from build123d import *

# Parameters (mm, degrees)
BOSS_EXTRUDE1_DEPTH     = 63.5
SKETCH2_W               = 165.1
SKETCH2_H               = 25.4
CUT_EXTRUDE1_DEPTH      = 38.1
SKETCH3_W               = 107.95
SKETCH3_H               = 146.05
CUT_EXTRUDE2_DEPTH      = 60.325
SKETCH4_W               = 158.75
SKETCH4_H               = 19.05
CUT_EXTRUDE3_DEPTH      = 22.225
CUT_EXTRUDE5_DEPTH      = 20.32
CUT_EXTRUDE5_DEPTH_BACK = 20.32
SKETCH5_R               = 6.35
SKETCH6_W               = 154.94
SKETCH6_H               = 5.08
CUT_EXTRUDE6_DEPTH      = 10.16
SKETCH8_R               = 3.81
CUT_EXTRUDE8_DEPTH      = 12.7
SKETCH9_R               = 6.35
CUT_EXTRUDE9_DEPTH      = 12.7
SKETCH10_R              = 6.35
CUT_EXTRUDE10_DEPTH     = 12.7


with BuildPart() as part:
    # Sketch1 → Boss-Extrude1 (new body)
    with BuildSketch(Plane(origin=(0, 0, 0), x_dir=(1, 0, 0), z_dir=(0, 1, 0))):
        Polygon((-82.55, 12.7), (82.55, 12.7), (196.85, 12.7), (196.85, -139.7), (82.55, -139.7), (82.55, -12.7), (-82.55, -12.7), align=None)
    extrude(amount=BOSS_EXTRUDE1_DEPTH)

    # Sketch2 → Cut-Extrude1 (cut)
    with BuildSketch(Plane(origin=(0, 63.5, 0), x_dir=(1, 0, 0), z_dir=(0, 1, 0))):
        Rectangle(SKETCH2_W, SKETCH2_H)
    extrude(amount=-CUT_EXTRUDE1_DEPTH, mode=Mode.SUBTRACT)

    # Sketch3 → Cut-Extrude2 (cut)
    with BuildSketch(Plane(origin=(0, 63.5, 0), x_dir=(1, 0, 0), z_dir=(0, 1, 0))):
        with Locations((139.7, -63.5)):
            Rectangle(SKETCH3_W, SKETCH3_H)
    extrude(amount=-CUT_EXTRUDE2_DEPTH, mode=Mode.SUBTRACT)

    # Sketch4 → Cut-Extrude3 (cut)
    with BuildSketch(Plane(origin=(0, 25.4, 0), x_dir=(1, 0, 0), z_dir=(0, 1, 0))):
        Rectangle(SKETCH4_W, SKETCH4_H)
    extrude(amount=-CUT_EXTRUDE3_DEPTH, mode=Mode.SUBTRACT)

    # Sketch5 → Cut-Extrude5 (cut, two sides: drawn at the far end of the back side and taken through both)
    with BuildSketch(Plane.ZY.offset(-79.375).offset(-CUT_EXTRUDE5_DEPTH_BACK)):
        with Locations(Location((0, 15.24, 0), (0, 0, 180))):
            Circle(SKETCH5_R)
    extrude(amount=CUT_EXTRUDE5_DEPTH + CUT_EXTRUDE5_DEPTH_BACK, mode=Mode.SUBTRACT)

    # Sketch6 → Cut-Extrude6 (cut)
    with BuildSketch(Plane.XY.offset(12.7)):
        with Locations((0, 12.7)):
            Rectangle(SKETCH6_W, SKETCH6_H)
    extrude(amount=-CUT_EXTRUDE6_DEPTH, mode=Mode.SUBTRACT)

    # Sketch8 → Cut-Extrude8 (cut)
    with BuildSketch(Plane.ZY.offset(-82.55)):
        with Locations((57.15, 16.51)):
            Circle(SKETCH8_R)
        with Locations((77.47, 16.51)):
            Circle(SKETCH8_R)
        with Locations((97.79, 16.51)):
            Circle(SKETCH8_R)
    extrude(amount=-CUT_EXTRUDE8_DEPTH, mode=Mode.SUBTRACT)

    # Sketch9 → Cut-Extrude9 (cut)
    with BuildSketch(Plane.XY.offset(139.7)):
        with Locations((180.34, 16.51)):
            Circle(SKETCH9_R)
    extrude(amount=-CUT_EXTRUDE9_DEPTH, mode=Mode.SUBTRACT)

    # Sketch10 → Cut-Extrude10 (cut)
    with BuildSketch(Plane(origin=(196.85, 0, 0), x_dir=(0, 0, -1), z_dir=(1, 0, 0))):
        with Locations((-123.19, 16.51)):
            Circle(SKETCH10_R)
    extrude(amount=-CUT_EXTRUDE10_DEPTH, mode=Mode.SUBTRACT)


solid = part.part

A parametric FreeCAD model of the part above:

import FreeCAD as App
import Part
import Sketcher

V = App.Vector
Q = App.Units.Quantity


def add_polygon(sketch, points):
    """Adds a closed chain of lines whose ends are joined by coincident constraints."""
    first, n = sketch.GeometryCount, len(points)
    for a, b in zip(points, points[1:] + points[:1]):
        sketch.addGeometry(Part.LineSegment(App.Vector(*a, 0), App.Vector(*b, 0)), False)
    for i in range(n):
        sketch.addConstraint(Sketcher.Constraint("Coincident", first + i, 2, first + (i + 1) % n, 1))

doc = App.newDocument("Part")
params = doc.addObject("Spreadsheet::Sheet", "Params")
for row, (alias, value) in enumerate([
    ("sketch1_width", "11 in"),
    ("sketch1_height", "1 in"),
    ("sketch1_height2", "5 in"),
    ("sketch1_width2", "6.5 in"),
    ("pad1_length", "2.5 in"),
    ("sketch2_height", "1 in"),
    ("sketch2_width", "6.5 in"),
    ("pocket1_length", "1.5 in"),
    ("sketch3_width", "4.25 in"),
    ("sketch3_height", "5.75 in"),
    ("pocket2_length", "2.375 in"),
    ("sketch4_width", "6.25 in"),
    ("sketch4_height", "0.75 in"),
    ("pocket3_length", "0.875 in"),
    ("sketch5_diameter", "0.5 in"),
    ("pocket4_length", "0.8 in"),
    ("pocket4_length2", "0.8 in"),
    ("sketch6_width", "6.1 in"),
    ("sketch6_height", "0.2 in"),
    ("pocket5_length", "0.4 in"),
    ("sketch7_diameter", "0.3 in"),
    ("pocket6_length", "0.5 in"),
    ("sketch8_diameter", "0.5 in"),
    ("pocket7_length", "0.5 in"),
    ("sketch9_diameter", "0.5 in"),
    ("pocket8_length", "0.5 in"),
], start=1):
    params.set(f"A{row}", alias)
    params.set(f"B{row}", "=" + value)
    params.setAlias(f"B{row}", alias)

body = doc.addObject("PartDesign::Body", "Body")

sketch1 = body.newObject("Sketcher::SketchObject", "Sketch")
sketch1.AttachmentSupport = (doc.getObject("XZ_Plane"), [""])
sketch1.MapMode = "FlatFace"
add_polygon(sketch1, [(197, -13), (-83, -13), (-83, 13), (83, 13), (83, 140), (197, 140)])
sketch1.addConstraint(Sketcher.Constraint("Horizontal", 0))
sketch1.addConstraint(Sketcher.Constraint("Vertical", 1))
sketch1.addConstraint(Sketcher.Constraint("Horizontal", 2))
sketch1.addConstraint(Sketcher.Constraint("Vertical", 3))
sketch1.addConstraint(Sketcher.Constraint("Horizontal", 4))
sketch1.addConstraint(Sketcher.Constraint("Vertical", 5))
sketch1.addConstraint(Sketcher.Constraint("Symmetric", 0, 2, 2, 2, -1, 1))
sketch1.addConstraint(Sketcher.Constraint("DistanceX", 0, 2, 0, 1, Q("11 in")))
sketch1.addConstraint(Sketcher.Constraint("DistanceY", 1, 1, 1, 2, Q("1 in")))
sketch1.addConstraint(Sketcher.Constraint("DistanceY", 3, 1, 3, 2, Q("5 in")))
sketch1.addConstraint(Sketcher.Constraint("DistanceX", 2, 1, 2, 2, Q("6.5 in")))
sketch1.setExpression("Constraints[13]", "Params.sketch1_width")
sketch1.setExpression("Constraints[14]", "Params.sketch1_height")
sketch1.setExpression("Constraints[15]", "Params.sketch1_height2")
sketch1.setExpression("Constraints[16]", "Params.sketch1_width2")
pad1 = body.newObject("PartDesign::Pad", "Pad")
pad1.Profile = sketch1
pad1.setExpression("Length", "Params.pad1_length")
pad1.Reversed = True

sketch2 = body.newObject("Sketcher::SketchObject", "Sketch001")
sketch2.AttachmentSupport = (doc.getObject("XZ_Plane"), [""])
sketch2.MapMode = "FlatFace"
sketch2.AttachmentOffset = App.Placement(V(0, 0, -2.5 * 25.4), App.Rotation())
add_polygon(sketch2, [(-83, -13), (-83, 13), (83, 13), (83, -13)])
sketch2.addConstraint(Sketcher.Constraint("Vertical", 0))
sketch2.addConstraint(Sketcher.Constraint("Horizontal", 1))
sketch2.addConstraint(Sketcher.Constraint("Vertical", 2))
sketch2.addConstraint(Sketcher.Constraint("Horizontal", 3))
sketch2.addConstraint(Sketcher.Constraint("Symmetric", 0, 2, 2, 2, -1, 1))
sketch2.addConstraint(Sketcher.Constraint("DistanceY", 0, 1, 0, 2, Q("1 in")))
sketch2.addConstraint(Sketcher.Constraint("DistanceX", 1, 1, 1, 2, Q("6.5 in")))
sketch2.setExpression("Constraints[9]", "Params.sketch2_height")
sketch2.setExpression("Constraints[10]", "Params.sketch2_width")
pocket1 = body.newObject("PartDesign::Pocket", "Pocket")
pocket1.Profile = sketch2
pocket1.setExpression("Length", "Params.pocket1_length")
pocket1.Reversed = True

sketch3 = body.newObject("Sketcher::SketchObject", "Sketch002")
sketch3.AttachmentSupport = (doc.getObject("XZ_Plane"), [""])
sketch3.MapMode = "FlatFace"
sketch3.AttachmentOffset = App.Placement(V(0, 0, -2.5 * 25.4), App.Rotation())
add_polygon(sketch3, [(86, -10), (86, 137), (194, 137), (194, -10)])
sketch3.addConstraint(Sketcher.Constraint("Vertical", 0))
sketch3.addConstraint(Sketcher.Constraint("Horizontal", 1))
sketch3.addConstraint(Sketcher.Constraint("Vertical", 2))
sketch3.addConstraint(Sketcher.Constraint("Horizontal", 3))
sketch3.addConstraint(Sketcher.Constraint("DistanceX", 1, 1, 1, 2, Q("4.25 in")))
sketch3.addConstraint(Sketcher.Constraint("DistanceY", 0, 1, 0, 2, Q("5.75 in")))
sketch3.addConstraint(Sketcher.Constraint("DistanceX", -1, 1, 0, 2, Q("3.375 in")))
sketch3.addConstraint(Sketcher.Constraint("DistanceY", -1, 1, 0, 2, Q("5.375 in")))
sketch3.setExpression("Constraints[8]", "Params.sketch3_width")
sketch3.setExpression("Constraints[9]", "Params.sketch3_height")
pocket2 = body.newObject("PartDesign::Pocket", "Pocket001")
pocket2.Profile = sketch3
pocket2.setExpression("Length", "Params.pocket2_length")
pocket2.Reversed = True

sketch4 = body.newObject("Sketcher::SketchObject", "Sketch003")
sketch4.AttachmentSupport = (doc.getObject("XZ_Plane"), [""])
sketch4.MapMode = "FlatFace"
sketch4.AttachmentOffset = App.Placement(V(0, 0, -1 * 25.4), App.Rotation())
add_polygon(sketch4, [(-79, -10), (-79, 10), (79, 10), (79, -10)])
sketch4.addConstraint(Sketcher.Constraint("Vertical", 0))
sketch4.addConstraint(Sketcher.Constraint("Horizontal", 1))
sketch4.addConstraint(Sketcher.Constraint("Vertical", 2))
sketch4.addConstraint(Sketcher.Constraint("Horizontal", 3))
sketch4.addConstraint(Sketcher.Constraint("Symmetric", 0, 2, 2, 2, -1, 1))
sketch4.addConstraint(Sketcher.Constraint("DistanceX", 1, 1, 1, 2, Q("6.25 in")))
sketch4.addConstraint(Sketcher.Constraint("DistanceY", 0, 1, 0, 2, Q("0.75 in")))
sketch4.setExpression("Constraints[9]", "Params.sketch4_width")
sketch4.setExpression("Constraints[10]", "Params.sketch4_height")
pocket3 = body.newObject("PartDesign::Pocket", "Pocket002")
pocket3.Profile = sketch4
pocket3.setExpression("Length", "Params.pocket3_length")
pocket3.Reversed = True

sketch5 = body.newObject("Sketcher::SketchObject", "Sketch004")
sketch5.AttachmentSupport = (doc.getObject("YZ_Plane"), [""])
sketch5.MapMode = "FlatFace"
sketch5.AttachmentOffset = App.Placement(V(0, 0, 3.125 * 25.4), App.Rotation())
sketch5.addGeometry(Part.Circle(V(15, 0, 0), V(0, 0, 1), 6), False)
sketch5.addConstraint(Sketcher.Constraint("PointOnObject", 0, 3, -1))
sketch5.addConstraint(Sketcher.Constraint("Diameter", 0, Q("0.5 in")))
sketch5.addConstraint(Sketcher.Constraint("DistanceX", -1, 1, 0, 3, Q("0.6 in")))
sketch5.setExpression("Constraints[1]", "Params.sketch5_diameter")
pocket4 = body.newObject("PartDesign::Pocket", "Pocket003")
pocket4.Profile = sketch5
pocket4.Type = "TwoLengths"
pocket4.setExpression("Length", "Params.pocket4_length")
pocket4.setExpression("Length2", "Params.pocket4_length2")

sketch6 = body.newObject("Sketcher::SketchObject", "Sketch005")
sketch6.AttachmentSupport = (doc.getObject("XY_Plane"), [""])
sketch6.MapMode = "FlatFace"
sketch6.AttachmentOffset = App.Placement(V(0, 0, 0.5 * 25.4), App.Rotation())
add_polygon(sketch6, [(-77, 15), (-77, 10), (77, 10), (77, 15)])
sketch6.addConstraint(Sketcher.Constraint("Vertical", 0))
sketch6.addConstraint(Sketcher.Constraint("Horizontal", 1))
sketch6.addConstraint(Sketcher.Constraint("Vertical", 2))
sketch6.addConstraint(Sketcher.Constraint("Horizontal", 3))
sketch6.addConstraint(Sketcher.Constraint("DistanceX", 1, 1, 1, 2, Q("6.1 in")))
sketch6.addConstraint(Sketcher.Constraint("DistanceY", 0, 2, 0, 1, Q("0.2 in")))
sketch6.addConstraint(Sketcher.Constraint("DistanceY", -1, 1, 0, 2, Q("0.4 in")))
sketch6.addConstraint(Sketcher.Constraint("DistanceX", 0, 2, -1, 1, Q("3.05 in")))
sketch6.setExpression("Constraints[8]", "Params.sketch6_width")
sketch6.setExpression("Constraints[9]", "Params.sketch6_height")
pocket5 = body.newObject("PartDesign::Pocket", "Pocket004")
pocket5.Profile = sketch6
pocket5.setExpression("Length", "Params.pocket5_length")

sketch7 = body.newObject("Sketcher::SketchObject", "Sketch006")
sketch7.AttachmentSupport = (doc.getObject("YZ_Plane"), [""])
sketch7.MapMode = "FlatFace"
sketch7.AttachmentOffset = App.Placement(V(0, 0, 3.25 * 25.4), App.Rotation())
sketch7.addGeometry(Part.Circle(V(16.5, 57.1, 0), V(0, 0, 1), 3.8), False)
sketch7.addGeometry(Part.Circle(V(16.5, 77.5, 0), V(0, 0, 1), 3.8), False)
sketch7.addGeometry(Part.Circle(V(16.5, 97.8, 0), V(0, 0, 1), 3.8), False)
sketch7.addConstraint(Sketcher.Constraint("Equal", 0, 1))
sketch7.addConstraint(Sketcher.Constraint("Equal", 1, 2))
sketch7.addConstraint(Sketcher.Constraint("Vertical", 0, 3, 1, 3))
sketch7.addConstraint(Sketcher.Constraint("Vertical", 1, 3, 2, 3))
sketch7.addConstraint(Sketcher.Constraint("Diameter", 0, Q("0.3 in")))
sketch7.addConstraint(Sketcher.Constraint("DistanceY", 0, 3, 1, 3, Q("0.8 in")))
sketch7.addConstraint(Sketcher.Constraint("DistanceY", 1, 3, 2, 3, Q("0.8 in")))
sketch7.addConstraint(Sketcher.Constraint("DistanceX", -1, 1, 0, 3, Q("0.65 in")))
sketch7.addConstraint(Sketcher.Constraint("DistanceY", -1, 1, 0, 3, Q("2.25 in")))
sketch7.setExpression("Constraints[4]", "Params.sketch7_diameter")
pocket6 = body.newObject("PartDesign::Pocket", "Pocket005")
pocket6.Profile = sketch7
pocket6.setExpression("Length", "Params.pocket6_length")
pocket6.Reversed = True

sketch8 = body.newObject("Sketcher::SketchObject", "Sketch007")
sketch8.AttachmentSupport = (doc.getObject("XY_Plane"), [""])
sketch8.MapMode = "FlatFace"
sketch8.AttachmentOffset = App.Placement(V(0, 0, 5.5 * 25.4), App.Rotation())
sketch8.addGeometry(Part.Circle(V(180, 17, 0), V(0, 0, 1), 6), False)
sketch8.addConstraint(Sketcher.Constraint("Diameter", 0, Q("0.5 in")))
sketch8.addConstraint(Sketcher.Constraint("DistanceX", -1, 1, 0, 3, Q("7.1 in")))
sketch8.addConstraint(Sketcher.Constraint("DistanceY", -1, 1, 0, 3, Q("0.65 in")))
sketch8.setExpression("Constraints[0]", "Params.sketch8_diameter")
pocket7 = body.newObject("PartDesign::Pocket", "Pocket006")
pocket7.Profile = sketch8
pocket7.setExpression("Length", "Params.pocket7_length")

sketch9 = body.newObject("Sketcher::SketchObject", "Sketch008")
sketch9.AttachmentSupport = (doc.getObject("YZ_Plane"), [""])
sketch9.MapMode = "FlatFace"
sketch9.AttachmentOffset = App.Placement(V(0, 0, 7.75 * 25.4), App.Rotation())
sketch9.addGeometry(Part.Circle(V(17, 123, 0), V(0, 0, 1), 6), False)
sketch9.addConstraint(Sketcher.Constraint("Diameter", 0, Q("0.5 in")))
sketch9.addConstraint(Sketcher.Constraint("DistanceX", -1, 1, 0, 3, Q("0.65 in")))
sketch9.addConstraint(Sketcher.Constraint("DistanceY", -1, 1, 0, 3, Q("4.85 in")))
sketch9.setExpression("Constraints[0]", "Params.sketch9_diameter")
pocket8 = body.newObject("PartDesign::Pocket", "Pocket007")
pocket8.Profile = sketch9
pocket8.setExpression("Length", "Params.pocket8_length")

doc.recompute()
